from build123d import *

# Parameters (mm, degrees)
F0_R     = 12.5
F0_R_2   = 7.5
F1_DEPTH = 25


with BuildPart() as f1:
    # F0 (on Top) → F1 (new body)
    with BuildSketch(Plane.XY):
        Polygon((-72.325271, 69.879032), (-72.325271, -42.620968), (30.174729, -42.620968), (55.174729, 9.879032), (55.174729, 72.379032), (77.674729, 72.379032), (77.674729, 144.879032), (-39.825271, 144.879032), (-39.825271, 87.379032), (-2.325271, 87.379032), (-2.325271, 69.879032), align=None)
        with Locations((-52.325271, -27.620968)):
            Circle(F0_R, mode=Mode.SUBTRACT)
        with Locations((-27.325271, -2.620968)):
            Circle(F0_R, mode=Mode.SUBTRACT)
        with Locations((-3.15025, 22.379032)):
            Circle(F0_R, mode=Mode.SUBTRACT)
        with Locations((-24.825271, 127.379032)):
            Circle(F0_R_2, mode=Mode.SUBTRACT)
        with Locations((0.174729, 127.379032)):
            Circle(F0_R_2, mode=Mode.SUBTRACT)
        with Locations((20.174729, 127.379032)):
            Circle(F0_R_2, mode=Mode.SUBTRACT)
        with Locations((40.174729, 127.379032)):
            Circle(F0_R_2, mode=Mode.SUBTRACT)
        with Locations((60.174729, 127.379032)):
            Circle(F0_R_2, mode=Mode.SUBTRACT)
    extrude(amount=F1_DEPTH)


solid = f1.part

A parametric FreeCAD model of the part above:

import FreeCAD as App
import Part
import Sketcher

doc = App.newDocument("Part")
params = doc.addObject("Spreadsheet::Sheet", "Params")
for row, (alias, value) in enumerate([
    ("sketch1_diameter", "25 mm"),
    ("sketch1_diameter2", "15 mm"),
    ("sketch1_width", "70 mm"),
    ("sketch1_width2", "102.5 mm"),
    ("sketch1_width3", "22.5 mm"),
    ("pad1_length", "25 mm"),
], start=1):
    params.set(f"A{row}", alias)
    params.set(f"B{row}", "=" + value)
    params.setAlias(f"B{row}", alias)

body = doc.addObject("PartDesign::Body", "Body")

sketch1 = body.newObject("Sketcher::SketchObject", "Sketch")
sketch1.AttachmentSupport = (doc.getObject("XY_Plane"), [""])
sketch1.MapMode = "FlatFace"
sketch1.addGeometry([
    Part.LineSegment(App.Vector(-72, 70, 0), App.Vector(-72, -43, 0)),
    Part.LineSegment(App.Vector(-72, -43, 0), App.Vector(30, -43, 0)),
    Part.LineSegment(App.Vector(30, -43, 0), App.Vector(55, 10, 0)),
    Part.LineSegment(App.Vector(55, 10, 0), App.Vector(55, 72, 0)),
    Part.LineSegment(App.Vector(55, 72, 0), App.Vector(78, 72, 0)),
    Part.LineSegment(App.Vector(78, 72, 0), App.Vector(78, 145, 0)),
    Part.LineSegment(App.Vector(78, 145, 0), App.Vector(-40, 145, 0)),
    Part.LineSegment(App.Vector(-40, 145, 0), App.Vector(-40, 87, 0)),
    Part.LineSegment(App.Vector(-40, 87, 0), App.Vector(-2, 87, 0)),
    Part.LineSegment(App.Vector(-2, 87, 0), App.Vector(-2, 70, 0)),
    Part.LineSegment(App.Vector(-2, 70, 0), App.Vector(-72, 70, 0)),
    Part.Circle(App.Vector(-52, -28, 0), App.Vector(0, 0, 1), 12),
    Part.Circle(App.Vector(-27, -3, 0), App.Vector(0, 0, 1), 12),
    Part.Circle(App.Vector(-3, 22, 0), App.Vector(0, 0, 1), 12),
    Part.Circle(App.Vector(-25, 127, 0), App.Vector(0, 0, 1), 8),
    Part.Circle(App.Vector(0, 127, 0), App.Vector(0, 0, 1), 8),
    Part.Circle(App.Vector(20, 127, 0), App.Vector(0, 0, 1), 8),
    Part.Circle(App.Vector(40, 127, 0), App.Vector(0, 0, 1), 8),
    Part.Circle(App.Vector(60, 127, 0), App.Vector(0, 0, 1), 8),
], False)
sketch1.addConstraint([
    Sketcher.Constraint("Coincident", 0, 2, 1, 1),
    Sketcher.Constraint("Coincident", 1, 2, 2, 1),
    Sketcher.Constraint("Coincident", 2, 2, 3, 1),
    Sketcher.Constraint("Coincident", 3, 2, 4, 1),
    Sketcher.Constraint("Coincident", 4, 2, 5, 1),
    Sketcher.Constraint("Coincident", 5, 2, 6, 1),
    Sketcher.Constraint("Coincident", 6, 2, 7, 1),
    Sketcher.Constraint("Coincident", 7, 2, 8, 1),
    Sketcher.Constraint("Coincident", 8, 2, 9, 1),
    Sketcher.Constraint("Coincident", 9, 2, 10, 1),
    Sketcher.Constraint("Coincident", 10, 2, 0, 1),
    Sketcher.Constraint("Vertical", 0),
    Sketcher.Constraint("Horizontal", 1),
    Sketcher.Constraint("Vertical", 3),
    Sketcher.Constraint("Horizontal", 4),
    Sketcher.Constraint("Vertical", 5),
    Sketcher.Constraint("Horizontal", 6),
    Sketcher.Constraint("Vertical", 7),
    Sketcher.Constraint("Horizontal", 8),
    Sketcher.Constraint("Vertical", 9),
    Sketcher.Constraint("Horizontal", 10),
    Sketcher.Constraint("Equal", 11, 12),
    Sketcher.Constraint("Equal", 12, 13),
    Sketcher.Constraint("Equal", 14, 15),
    Sketcher.Constraint("Equal", 15, 16),
    Sketcher.Constraint("Equal", 16, 17),
    Sketcher.Constraint("Equal", 17, 18),
    Sketcher.Constraint("Horizontal", 14, 3, 15, 3),
    Sketcher.Constraint("Horizontal", 15, 3, 16, 3),
    Sketcher.Constraint("Horizontal", 16, 3, 17, 3),
    Sketcher.Constraint("Horizontal", 17, 3, 18, 3),
    Sketcher.Constraint("Diameter", 11, 25.0),
    Sketcher.Constraint("Diameter", 14, 15.0),
    Sketcher.Constraint("DistanceX", 10, 2, 10, 1, 70.0),
    Sketcher.Constraint("DistanceX", 1, 1, 1, 2, 102.5),
    Sketcher.Constraint("DistanceX", 4, 1, 4, 2, 22.5),
    Sketcher.Constraint("DistanceX", 6, 2, 6, 1, 117.5),
    Sketcher.Constraint("DistanceX", 8, 1, 8, 2, 37.5),
    Sketcher.Constraint("DistanceY", 0, 2, 0, 1, 112.5),
    Sketcher.Constraint("DistanceY", 3, 1, 3, 2, 62.5),
    Sketcher.Constraint("DistanceY", 5, 1, 5, 2, 72.5),
    Sketcher.Constraint("DistanceY", 7, 2, 7, 1, 57.5),
    Sketcher.Constraint("DistanceY", 9, 2, 9, 1, 17.5),
    Sketcher.Constraint("DistanceX", 11, 3, 12, 3, 25.0),
    Sketcher.Constraint("DistanceY", 11, 3, 12, 3, 25.0),
    Sketcher.Constraint("DistanceY", 12, 3, 13, 3, 25.0),
    Sketcher.Constraint("DistanceY", 13, 3, 14, 3, 105.0),
    Sketcher.Constraint("DistanceX", 14, 3, 15, 3, 25.0),
    Sketcher.Constraint("DistanceX", 15, 3, 16, 3, 20.0),
    Sketcher.Constraint("DistanceX", 16, 3, 17, 3, 20.0),
    Sketcher.Constraint("DistanceX", 17, 3, 18, 3, 20.0),
    Sketcher.Constraint("DistanceX", 0, 2, 11, 3, 20.0),
    Sketcher.Constraint("DistanceY", 0, 2, 11, 3, 15.0),
    Sketcher.Constraint("DistanceX", 16, 3, 1, 2, 10.0),
    Sketcher.Constraint("DistanceX", 11, 3, -1, 1, 52.325271),
    Sketcher.Constraint("DistanceY", 11, 3, -1, 1, 27.620968),
    Sketcher.Constraint("DistanceX", 13, 3, -1, 1, 3.15025),
])
sketch1.setExpression("Constraints[31]", "Params.sketch1_diameter")
sketch1.setExpression("Constraints[32]", "Params.sketch1_diameter2")
sketch1.setExpression("Constraints[33]", "Params.sketch1_width")
sketch1.setExpression("Constraints[34]", "Params.sketch1_width2")
sketch1.setExpression("Constraints[35]", "Params.sketch1_width3")
pad1 = body.newObject("PartDesign::Pad", "Pad")
pad1.Profile = sketch1
pad1.setExpression("Length", "Params.pad1_length")

doc.recompute()
